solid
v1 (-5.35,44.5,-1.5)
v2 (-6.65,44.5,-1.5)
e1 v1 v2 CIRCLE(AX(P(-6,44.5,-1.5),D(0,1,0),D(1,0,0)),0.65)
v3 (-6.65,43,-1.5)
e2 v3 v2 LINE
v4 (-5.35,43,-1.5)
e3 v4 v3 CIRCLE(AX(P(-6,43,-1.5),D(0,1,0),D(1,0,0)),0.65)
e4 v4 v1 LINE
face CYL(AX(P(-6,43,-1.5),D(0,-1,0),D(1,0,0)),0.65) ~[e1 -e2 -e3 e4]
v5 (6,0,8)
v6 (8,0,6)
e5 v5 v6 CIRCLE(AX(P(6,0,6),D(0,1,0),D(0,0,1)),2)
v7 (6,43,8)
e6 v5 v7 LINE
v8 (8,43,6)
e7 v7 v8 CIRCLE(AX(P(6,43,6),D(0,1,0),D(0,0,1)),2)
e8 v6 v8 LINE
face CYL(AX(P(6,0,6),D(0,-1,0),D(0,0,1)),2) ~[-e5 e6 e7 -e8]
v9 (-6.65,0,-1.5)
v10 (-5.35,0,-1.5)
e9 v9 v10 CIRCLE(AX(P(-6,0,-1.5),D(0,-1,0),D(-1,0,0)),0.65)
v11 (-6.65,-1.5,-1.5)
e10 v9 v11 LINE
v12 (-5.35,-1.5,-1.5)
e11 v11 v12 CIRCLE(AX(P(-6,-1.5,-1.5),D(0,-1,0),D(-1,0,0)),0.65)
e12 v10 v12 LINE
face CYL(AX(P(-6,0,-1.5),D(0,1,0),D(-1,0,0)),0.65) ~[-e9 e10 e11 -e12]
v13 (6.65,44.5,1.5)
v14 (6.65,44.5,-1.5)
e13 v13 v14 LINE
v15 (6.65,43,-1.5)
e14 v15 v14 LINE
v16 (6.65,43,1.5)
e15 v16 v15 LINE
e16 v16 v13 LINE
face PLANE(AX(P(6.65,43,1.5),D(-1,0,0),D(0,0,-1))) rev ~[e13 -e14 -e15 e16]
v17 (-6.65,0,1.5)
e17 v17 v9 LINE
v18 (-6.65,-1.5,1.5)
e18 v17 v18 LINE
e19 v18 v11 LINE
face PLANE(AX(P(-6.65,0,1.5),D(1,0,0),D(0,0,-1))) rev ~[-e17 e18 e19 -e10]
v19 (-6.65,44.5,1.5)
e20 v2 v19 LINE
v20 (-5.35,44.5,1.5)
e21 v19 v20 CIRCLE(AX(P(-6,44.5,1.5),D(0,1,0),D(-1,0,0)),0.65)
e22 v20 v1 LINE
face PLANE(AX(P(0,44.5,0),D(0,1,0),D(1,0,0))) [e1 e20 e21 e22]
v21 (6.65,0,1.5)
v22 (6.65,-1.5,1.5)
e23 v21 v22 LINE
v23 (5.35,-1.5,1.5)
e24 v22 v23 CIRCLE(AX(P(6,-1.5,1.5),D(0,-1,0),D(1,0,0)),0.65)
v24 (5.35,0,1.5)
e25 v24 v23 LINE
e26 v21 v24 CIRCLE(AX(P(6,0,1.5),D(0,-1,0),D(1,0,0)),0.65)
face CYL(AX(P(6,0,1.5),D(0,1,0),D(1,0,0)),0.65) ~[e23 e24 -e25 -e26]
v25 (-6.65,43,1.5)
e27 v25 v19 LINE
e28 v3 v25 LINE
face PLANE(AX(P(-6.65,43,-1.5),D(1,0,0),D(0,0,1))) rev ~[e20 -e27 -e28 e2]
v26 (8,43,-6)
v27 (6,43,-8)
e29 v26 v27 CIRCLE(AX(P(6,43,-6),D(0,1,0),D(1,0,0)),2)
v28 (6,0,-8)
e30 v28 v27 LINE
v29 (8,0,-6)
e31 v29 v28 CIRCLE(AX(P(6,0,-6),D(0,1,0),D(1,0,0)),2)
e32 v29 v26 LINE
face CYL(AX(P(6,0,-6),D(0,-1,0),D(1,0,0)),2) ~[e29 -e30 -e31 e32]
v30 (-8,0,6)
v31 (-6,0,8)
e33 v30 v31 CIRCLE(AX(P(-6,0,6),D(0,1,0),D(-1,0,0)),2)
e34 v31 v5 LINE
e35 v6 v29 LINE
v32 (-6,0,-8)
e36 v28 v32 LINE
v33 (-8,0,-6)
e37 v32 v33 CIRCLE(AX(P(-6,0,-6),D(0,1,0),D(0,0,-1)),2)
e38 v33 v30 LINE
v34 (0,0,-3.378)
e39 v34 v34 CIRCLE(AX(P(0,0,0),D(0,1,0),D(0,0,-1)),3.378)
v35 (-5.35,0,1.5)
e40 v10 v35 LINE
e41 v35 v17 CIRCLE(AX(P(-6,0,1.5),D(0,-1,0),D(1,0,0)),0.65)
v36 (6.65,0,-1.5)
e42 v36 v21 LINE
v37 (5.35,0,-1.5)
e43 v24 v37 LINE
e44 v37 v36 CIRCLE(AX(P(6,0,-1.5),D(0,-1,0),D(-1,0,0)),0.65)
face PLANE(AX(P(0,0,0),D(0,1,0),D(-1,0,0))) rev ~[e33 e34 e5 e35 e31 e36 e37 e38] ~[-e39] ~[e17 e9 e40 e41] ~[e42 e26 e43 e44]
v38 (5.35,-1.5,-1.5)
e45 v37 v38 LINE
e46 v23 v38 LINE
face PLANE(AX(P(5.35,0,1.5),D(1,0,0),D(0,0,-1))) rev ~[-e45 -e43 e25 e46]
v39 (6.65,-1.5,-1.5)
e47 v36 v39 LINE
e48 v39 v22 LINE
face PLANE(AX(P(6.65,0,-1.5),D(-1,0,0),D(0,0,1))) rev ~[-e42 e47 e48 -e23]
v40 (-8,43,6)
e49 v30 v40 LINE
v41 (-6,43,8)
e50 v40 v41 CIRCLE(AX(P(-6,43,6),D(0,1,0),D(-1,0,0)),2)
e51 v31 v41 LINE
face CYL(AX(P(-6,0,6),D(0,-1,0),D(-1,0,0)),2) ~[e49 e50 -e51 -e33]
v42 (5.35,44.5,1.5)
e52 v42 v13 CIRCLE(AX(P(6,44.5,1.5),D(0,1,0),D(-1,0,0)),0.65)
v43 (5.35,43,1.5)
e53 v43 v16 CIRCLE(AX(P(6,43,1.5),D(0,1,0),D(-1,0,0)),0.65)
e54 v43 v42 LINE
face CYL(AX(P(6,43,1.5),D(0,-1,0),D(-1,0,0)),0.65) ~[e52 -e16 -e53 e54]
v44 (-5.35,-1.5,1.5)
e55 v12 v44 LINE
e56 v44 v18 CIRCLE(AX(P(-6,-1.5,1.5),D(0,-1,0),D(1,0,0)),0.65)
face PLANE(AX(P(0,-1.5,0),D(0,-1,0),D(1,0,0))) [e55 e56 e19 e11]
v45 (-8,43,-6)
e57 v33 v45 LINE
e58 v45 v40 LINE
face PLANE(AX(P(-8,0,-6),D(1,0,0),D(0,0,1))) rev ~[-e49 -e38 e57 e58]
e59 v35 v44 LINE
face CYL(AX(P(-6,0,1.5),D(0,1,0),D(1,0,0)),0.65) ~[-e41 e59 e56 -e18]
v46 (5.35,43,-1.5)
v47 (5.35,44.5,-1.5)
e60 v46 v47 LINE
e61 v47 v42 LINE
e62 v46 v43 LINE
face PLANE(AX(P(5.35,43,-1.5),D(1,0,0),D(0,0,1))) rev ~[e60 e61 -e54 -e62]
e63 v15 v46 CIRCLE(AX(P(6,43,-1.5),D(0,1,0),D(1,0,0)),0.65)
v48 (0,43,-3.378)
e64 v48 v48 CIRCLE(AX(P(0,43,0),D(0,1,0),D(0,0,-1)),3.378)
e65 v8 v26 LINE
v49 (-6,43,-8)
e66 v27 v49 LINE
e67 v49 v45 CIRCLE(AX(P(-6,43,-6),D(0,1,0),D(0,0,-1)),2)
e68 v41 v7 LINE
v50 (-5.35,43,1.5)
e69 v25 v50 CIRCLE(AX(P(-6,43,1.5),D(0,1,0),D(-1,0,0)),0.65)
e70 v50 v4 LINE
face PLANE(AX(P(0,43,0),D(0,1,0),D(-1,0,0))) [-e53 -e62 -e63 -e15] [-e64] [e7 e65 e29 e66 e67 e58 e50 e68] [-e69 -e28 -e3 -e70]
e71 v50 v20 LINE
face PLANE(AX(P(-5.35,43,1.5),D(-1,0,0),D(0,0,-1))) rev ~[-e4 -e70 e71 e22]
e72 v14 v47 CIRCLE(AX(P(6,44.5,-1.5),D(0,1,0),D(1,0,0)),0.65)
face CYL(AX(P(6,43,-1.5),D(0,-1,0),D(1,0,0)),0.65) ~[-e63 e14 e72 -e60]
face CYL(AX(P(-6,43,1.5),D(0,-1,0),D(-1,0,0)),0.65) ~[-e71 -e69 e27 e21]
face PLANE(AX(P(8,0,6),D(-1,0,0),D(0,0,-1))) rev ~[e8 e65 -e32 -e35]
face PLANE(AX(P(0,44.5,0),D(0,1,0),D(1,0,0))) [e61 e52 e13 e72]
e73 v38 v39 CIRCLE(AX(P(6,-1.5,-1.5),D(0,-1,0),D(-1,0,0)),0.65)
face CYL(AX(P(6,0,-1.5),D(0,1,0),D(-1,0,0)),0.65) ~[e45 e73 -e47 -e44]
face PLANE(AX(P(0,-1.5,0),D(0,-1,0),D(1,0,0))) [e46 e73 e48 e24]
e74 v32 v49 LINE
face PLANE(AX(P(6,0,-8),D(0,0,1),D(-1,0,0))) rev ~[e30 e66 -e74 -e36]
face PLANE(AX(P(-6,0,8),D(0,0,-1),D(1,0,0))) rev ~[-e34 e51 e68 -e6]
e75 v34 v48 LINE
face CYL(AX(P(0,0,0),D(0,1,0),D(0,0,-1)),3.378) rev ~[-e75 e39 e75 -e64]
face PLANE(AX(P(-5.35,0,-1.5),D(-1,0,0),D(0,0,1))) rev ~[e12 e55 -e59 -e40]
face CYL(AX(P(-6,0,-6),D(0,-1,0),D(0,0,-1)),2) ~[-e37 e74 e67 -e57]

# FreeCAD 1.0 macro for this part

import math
import FreeCAD as App
import Part
import Sketcher
from FreeCAD import Vector
Q = App.Units.Quantity

doc = App.newDocument("Part")
body = doc.addObject("PartDesign::Body", "Body")

# Sketch on XZ plane
sketch1 = body.newObject("Sketcher::SketchObject", "Sketch")
sketch1.AttachmentSupport = (doc.getObject("XZ_Plane"), [""])
sketch1.MapMode = "FlatFace"
sketch1.addGeometry([
    Part.ArcOfCircle(Part.Circle(Vector(-6, 6, 0), Vector(0, 0, 1), 2), math.radians(90), math.radians(180)),  # 0
    Part.LineSegment(Vector(-6, 8, 0), Vector(6, 8, 0)),  # 1
    Part.ArcOfCircle(Part.Circle(Vector(6, 6, 0), Vector(0, 0, 1), 2), math.radians(0), math.radians(90)),  # 2
    Part.LineSegment(Vector(8, 6, 0), Vector(8, -6, 0)),  # 3
    Part.ArcOfCircle(Part.Circle(Vector(6, -6, 0), Vector(0, 0, 1), 2), math.radians(-90), math.radians(0)),  # 4
    Part.LineSegment(Vector(6, -8, 0), Vector(-6, -8, 0)),  # 5
    Part.ArcOfCircle(Part.Circle(Vector(-6, -6, 0), Vector(0, 0, 1), 2), math.radians(180), math.radians(270)),  # 6
    Part.LineSegment(Vector(-8, -6, 0), Vector(-8, 6, 0)),  # 7
], False)
sketch1.addConstraint([
    Sketcher.Constraint("Tangent", 0, 1, 1, 1),
    Sketcher.Constraint("Tangent", 1, 2, 2, 2),
    Sketcher.Constraint("Tangent", 2, 1, 3, 1),
    Sketcher.Constraint("Tangent", 3, 2, 4, 2),
    Sketcher.Constraint("Tangent", 4, 1, 5, 1),
    Sketcher.Constraint("Tangent", 5, 2, 6, 2),
    Sketcher.Constraint("Tangent", 6, 1, 7, 1),
    Sketcher.Constraint("Tangent", 7, 2, 0, 2),
    Sketcher.Constraint("Horizontal", 1),
    Sketcher.Constraint("Vertical", 3),
    Sketcher.Constraint("Horizontal", 5),
    Sketcher.Constraint("Vertical", 7),
    Sketcher.Constraint("Equal", 0, 2),
    Sketcher.Constraint("Equal", 2, 4),
    Sketcher.Constraint("Equal", 4, 6),
    Sketcher.Constraint("Symmetric", 0, 3, 4, 3, -1, 1),
    Sketcher.Constraint("Equal", 5, 3),
    Sketcher.Constraint("Radius", 0, Q("2 mm")),
    Sketcher.Constraint("DistanceY", -1, 1, 0, 1, Q("8 mm")),
])
pad1 = body.newObject("PartDesign::Pad", "Pad")
pad1.Profile = sketch1
pad1.Length = 43
pad1.Reversed = True

# Sketch on XZ plane
sketch2 = body.newObject("Sketcher::SketchObject", "Sketch001")
sketch2.AttachmentSupport = (doc.getObject("XZ_Plane"), [""])
sketch2.MapMode = "FlatFace"
sketch2.addGeometry(Part.Circle(Vector(0, 0, 0), Vector(0, 0, 1), 3.378), False)
sketch2.addConstraint([
    Sketcher.Constraint("Coincident", 0, 3, -1, 1),
    Sketcher.Constraint("Diameter", 0, Q("6.756 mm")),
])
doc.recompute()
hole = body.newObject("PartDesign::Hole", "Hole")
hole.Profile = sketch2
hole.ThreadType = "None"
hole.Diameter = 6.756
hole.DepthType = "ThroughAll"

# Sketch on XZ plane
sketch3 = body.newObject("Sketcher::SketchObject", "Sketch002")
sketch3.AttachmentSupport = (doc.getObject("XZ_Plane"), [""])
sketch3.MapMode = "FlatFace"
sketch3.AttachmentOffset = App.Placement(Vector(0, 0, -43), App.Rotation())
sketch3.addGeometry([
    Part.ArcOfCircle(Part.Circle(Vector(-6, -1.5, 0), Vector(0, 0, 1), 0.65), math.radians(180), math.radians(360)),  # 0
    Part.LineSegment(Vector(-6.65, -1.5, 0), Vector(-6.65, 1.5, 0)),  # 1
    Part.ArcOfCircle(Part.Circle(Vector(-6, 1.5, 0), Vector(0, 0, 1), 0.65), math.radians(0), math.radians(180)),  # 2
    Part.LineSegment(Vector(-5.35, 1.5, 0), Vector(-5.35, -1.5, 0)),  # 3
    Part.ArcOfCircle(Part.Circle(Vector(6, -1.5, 0), Vector(0, 0, 1), 0.65), math.radians(180), math.radians(360)),  # 4
    Part.LineSegment(Vector(5.35, -1.5, 0), Vector(5.35, 1.5, 0)),  # 5
    Part.ArcOfCircle(Part.Circle(Vector(6, 1.5, 0), Vector(0, 0, 1), 0.65), math.radians(0), math.radians(180)),  # 6
    Part.LineSegment(Vector(6.65, 1.5, 0), Vector(6.65, -1.5, 0)),  # 7
], False)
sketch3.addConstraint([
    Sketcher.Constraint("Tangent", 0, 1, 1, 1),
    Sketcher.Constraint("Tangent", 1, 2, 2, 2),
    Sketcher.Constraint("Tangent", 2, 1, 3, 1),
    Sketcher.Constraint("Tangent", 3, 2, 0, 2),
    Sketcher.Constraint("Tangent", 4, 1, 5, 1),
    Sketcher.Constraint("Tangent", 5, 2, 6, 2),
    Sketcher.Constraint("Tangent", 6, 1, 7, 1),
    Sketcher.Constraint("Tangent", 7, 2, 4, 2),
    Sketcher.Constraint("Vertical", 1),
    Sketcher.Constraint("Vertical", 3),
    Sketcher.Constraint("Vertical", 5),
    Sketcher.Constraint("Vertical", 7),
    Sketcher.Constraint("Equal", 2, 4),
    Sketcher.Constraint("Symmetric", 2, 3, 4, 3, -1, 1),
    Sketcher.Constraint("Horizontal", 0, 3, 4, 3),
    Sketcher.Constraint("Horizontal", 2, 3, 6, 3),
    Sketcher.Constraint("DistanceY", 1, 1, 1, 2, Q("3 mm")),
    Sketcher.Constraint("Radius", 0, Q("0.65 mm")),
    Sketcher.Constraint("DistanceX", 0, 3, -1, 1, Q("6 mm")),
])
pad2 = body.newObject("PartDesign::Pad", "Pad001")
pad2.Profile = sketch3
pad2.Length = 1.5
pad2.Reversed = True

# Sketch on XZ plane
sketch4 = body.newObject("Sketcher::SketchObject", "Sketch003")
sketch4.AttachmentSupport = (doc.getObject("XZ_Plane"), [""])
sketch4.MapMode = "FlatFace"
sketch4.addGeometry([
    Part.ArcOfCircle(Part.Circle(Vector(-6, 1.5, 0), Vector(0, 0, 1), 0.65), math.radians(0), math.radians(180)),  # 0
    Part.LineSegment(Vector(-6.65, 1.5, 0), Vector(-6.65, -1.5, 0)),  # 1
    Part.ArcOfCircle(Part.Circle(Vector(-6, -1.5, 0), Vector(0, 0, 1), 0.65), math.radians(180), math.radians(360)),  # 2
    Part.LineSegment(Vector(-5.35, -1.5, 0), Vector(-5.35, 1.5, 0)),  # 3
    Part.ArcOfCircle(Part.Circle(Vector(6, 1.5, 0), Vector(0, 0, 1), 0.65), math.radians(0), math.radians(180)),  # 4
    Part.LineSegment(Vector(5.35, 1.5, 0), Vector(5.35, -1.5, 0)),  # 5
    Part.ArcOfCircle(Part.Circle(Vector(6, -1.5, 0), Vector(0, 0, 1), 0.65), math.radians(180), math.radians(360)),  # 6
    Part.LineSegment(Vector(6.65, -1.5, 0), Vector(6.65, 1.5, 0)),  # 7
], False)
sketch4.addConstraint([
    Sketcher.Constraint("Tangent", 0, 2, 1, 1),
    Sketcher.Constraint("Tangent", 1, 2, 2, 1),
    Sketcher.Constraint("Tangent", 2, 2, 3, 1),
    Sketcher.Constraint("Tangent", 3, 2, 0, 1),
    Sketcher.Constraint("Tangent", 4, 2, 5, 1),
    Sketcher.Constraint("Tangent", 5, 2, 6, 1),
    Sketcher.Constraint("Tangent", 6, 2, 7, 1),
    Sketcher.Constraint("Tangent", 7, 2, 4, 1),
    Sketcher.Constraint("Vertical", 1),
    Sketcher.Constraint("Vertical", 3),
    Sketcher.Constraint("Vertical", 5),
    Sketcher.Constraint("Vertical", 7),
    Sketcher.Constraint("Equal", 2, 4),
    Sketcher.Constraint("Symmetric", 2, 3, 4, 3, -1, 1),
    Sketcher.Constraint("Horizontal", 0, 3, 4, 3),
    Sketcher.Constraint("Horizontal", 2, 3, 6, 3),
    Sketcher.Constraint("DistanceY", 1, 2, 1, 1, Q("3 mm")),
    Sketcher.Constraint("Radius", 0, Q("0.65 mm")),
    Sketcher.Constraint("DistanceX", 0, 3, -1, 1, Q("6 mm")),
])
pad3 = body.newObject("PartDesign::Pad", "Pad002")
pad3.Profile = sketch4
pad3.Length = 1.5

doc.recompute()
